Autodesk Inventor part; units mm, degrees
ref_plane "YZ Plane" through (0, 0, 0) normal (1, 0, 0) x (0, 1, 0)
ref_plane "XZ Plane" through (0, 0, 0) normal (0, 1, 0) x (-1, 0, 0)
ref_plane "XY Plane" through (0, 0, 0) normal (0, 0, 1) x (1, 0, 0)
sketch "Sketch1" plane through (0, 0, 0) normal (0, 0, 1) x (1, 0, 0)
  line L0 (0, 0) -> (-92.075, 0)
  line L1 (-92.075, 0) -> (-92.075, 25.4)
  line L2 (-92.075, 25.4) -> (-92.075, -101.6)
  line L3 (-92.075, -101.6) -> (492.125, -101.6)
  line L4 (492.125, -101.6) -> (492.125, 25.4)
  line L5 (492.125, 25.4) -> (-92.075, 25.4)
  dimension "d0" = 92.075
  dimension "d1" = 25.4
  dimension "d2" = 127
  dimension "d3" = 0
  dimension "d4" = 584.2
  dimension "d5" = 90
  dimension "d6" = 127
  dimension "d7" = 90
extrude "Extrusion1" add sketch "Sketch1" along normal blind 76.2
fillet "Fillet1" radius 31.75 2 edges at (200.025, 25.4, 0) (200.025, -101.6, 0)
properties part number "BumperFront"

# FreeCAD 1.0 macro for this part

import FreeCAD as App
import Part
import Sketcher

V = App.Vector
Q = App.Units.Quantity


def edges_at(feature, points):
    """Names of the edges that pass closest to the given points."""
    edges = feature.Shape.Edges
    near = lambda p: min(range(len(edges)), key=lambda i: edges[i].distToShape(Part.Vertex(*p))[0])
    return sorted({f"Edge{near(p) + 1}" for p in points})


def add_polygon(sketch, points):
    """Adds a closed chain of lines whose ends are joined by coincident constraints."""
    first, n = sketch.GeometryCount, len(points)
    for a, b in zip(points, points[1:] + points[:1]):
        sketch.addGeometry(Part.LineSegment(App.Vector(*a, 0), App.Vector(*b, 0)), False)
    for i in range(n):
        sketch.addConstraint(Sketcher.Constraint("Coincident", first + i, 2, first + (i + 1) % n, 1))

doc = App.newDocument("Part")
body = doc.addObject("PartDesign::Body", "Body")

sketch1 = doc.addObject("Sketcher::SketchObject", "Sketch")
body.addObject(sketch1)
sketch1.AttachmentSupport = (doc.XY_Plane, [""])
sketch1.MapMode = "FlatFace"
add_polygon(sketch1, [(-92, 25), (-92, -102), (492, -102), (492, 25)])
sketch1.addConstraint([
    Sketcher.Constraint("Vertical", 0),
    Sketcher.Constraint("Horizontal", 1),
    Sketcher.Constraint("Vertical", 2),
    Sketcher.Constraint("Horizontal", 3),
    Sketcher.Constraint("DistanceX", 1, 1, 1, 2, Q("23 in")),
    Sketcher.Constraint("DistanceY", 0, 2, 0, 1, Q("5 in")),
    Sketcher.Constraint("DistanceY", -1, 1, 2, 2, Q("1 in")),
    Sketcher.Constraint("DistanceX", 0, 2, -1, 1, Q("3.625 in")),
])
pad1 = doc.addObject("PartDesign::Pad", "Pad")
body.addObject(pad1)
pad1.Profile = sketch1
pad1.Length = Q("3 in")
doc.recompute()

fillet = doc.addObject("PartDesign::Fillet", "Fillet")
body.addObject(fillet)
fillet.Base = (pad1, edges_at(pad1, [(200.025, 25.4, 0), (200.025, -101.6, 0)]))
fillet.Radius = Q("1.25 in")

doc.recompute()
